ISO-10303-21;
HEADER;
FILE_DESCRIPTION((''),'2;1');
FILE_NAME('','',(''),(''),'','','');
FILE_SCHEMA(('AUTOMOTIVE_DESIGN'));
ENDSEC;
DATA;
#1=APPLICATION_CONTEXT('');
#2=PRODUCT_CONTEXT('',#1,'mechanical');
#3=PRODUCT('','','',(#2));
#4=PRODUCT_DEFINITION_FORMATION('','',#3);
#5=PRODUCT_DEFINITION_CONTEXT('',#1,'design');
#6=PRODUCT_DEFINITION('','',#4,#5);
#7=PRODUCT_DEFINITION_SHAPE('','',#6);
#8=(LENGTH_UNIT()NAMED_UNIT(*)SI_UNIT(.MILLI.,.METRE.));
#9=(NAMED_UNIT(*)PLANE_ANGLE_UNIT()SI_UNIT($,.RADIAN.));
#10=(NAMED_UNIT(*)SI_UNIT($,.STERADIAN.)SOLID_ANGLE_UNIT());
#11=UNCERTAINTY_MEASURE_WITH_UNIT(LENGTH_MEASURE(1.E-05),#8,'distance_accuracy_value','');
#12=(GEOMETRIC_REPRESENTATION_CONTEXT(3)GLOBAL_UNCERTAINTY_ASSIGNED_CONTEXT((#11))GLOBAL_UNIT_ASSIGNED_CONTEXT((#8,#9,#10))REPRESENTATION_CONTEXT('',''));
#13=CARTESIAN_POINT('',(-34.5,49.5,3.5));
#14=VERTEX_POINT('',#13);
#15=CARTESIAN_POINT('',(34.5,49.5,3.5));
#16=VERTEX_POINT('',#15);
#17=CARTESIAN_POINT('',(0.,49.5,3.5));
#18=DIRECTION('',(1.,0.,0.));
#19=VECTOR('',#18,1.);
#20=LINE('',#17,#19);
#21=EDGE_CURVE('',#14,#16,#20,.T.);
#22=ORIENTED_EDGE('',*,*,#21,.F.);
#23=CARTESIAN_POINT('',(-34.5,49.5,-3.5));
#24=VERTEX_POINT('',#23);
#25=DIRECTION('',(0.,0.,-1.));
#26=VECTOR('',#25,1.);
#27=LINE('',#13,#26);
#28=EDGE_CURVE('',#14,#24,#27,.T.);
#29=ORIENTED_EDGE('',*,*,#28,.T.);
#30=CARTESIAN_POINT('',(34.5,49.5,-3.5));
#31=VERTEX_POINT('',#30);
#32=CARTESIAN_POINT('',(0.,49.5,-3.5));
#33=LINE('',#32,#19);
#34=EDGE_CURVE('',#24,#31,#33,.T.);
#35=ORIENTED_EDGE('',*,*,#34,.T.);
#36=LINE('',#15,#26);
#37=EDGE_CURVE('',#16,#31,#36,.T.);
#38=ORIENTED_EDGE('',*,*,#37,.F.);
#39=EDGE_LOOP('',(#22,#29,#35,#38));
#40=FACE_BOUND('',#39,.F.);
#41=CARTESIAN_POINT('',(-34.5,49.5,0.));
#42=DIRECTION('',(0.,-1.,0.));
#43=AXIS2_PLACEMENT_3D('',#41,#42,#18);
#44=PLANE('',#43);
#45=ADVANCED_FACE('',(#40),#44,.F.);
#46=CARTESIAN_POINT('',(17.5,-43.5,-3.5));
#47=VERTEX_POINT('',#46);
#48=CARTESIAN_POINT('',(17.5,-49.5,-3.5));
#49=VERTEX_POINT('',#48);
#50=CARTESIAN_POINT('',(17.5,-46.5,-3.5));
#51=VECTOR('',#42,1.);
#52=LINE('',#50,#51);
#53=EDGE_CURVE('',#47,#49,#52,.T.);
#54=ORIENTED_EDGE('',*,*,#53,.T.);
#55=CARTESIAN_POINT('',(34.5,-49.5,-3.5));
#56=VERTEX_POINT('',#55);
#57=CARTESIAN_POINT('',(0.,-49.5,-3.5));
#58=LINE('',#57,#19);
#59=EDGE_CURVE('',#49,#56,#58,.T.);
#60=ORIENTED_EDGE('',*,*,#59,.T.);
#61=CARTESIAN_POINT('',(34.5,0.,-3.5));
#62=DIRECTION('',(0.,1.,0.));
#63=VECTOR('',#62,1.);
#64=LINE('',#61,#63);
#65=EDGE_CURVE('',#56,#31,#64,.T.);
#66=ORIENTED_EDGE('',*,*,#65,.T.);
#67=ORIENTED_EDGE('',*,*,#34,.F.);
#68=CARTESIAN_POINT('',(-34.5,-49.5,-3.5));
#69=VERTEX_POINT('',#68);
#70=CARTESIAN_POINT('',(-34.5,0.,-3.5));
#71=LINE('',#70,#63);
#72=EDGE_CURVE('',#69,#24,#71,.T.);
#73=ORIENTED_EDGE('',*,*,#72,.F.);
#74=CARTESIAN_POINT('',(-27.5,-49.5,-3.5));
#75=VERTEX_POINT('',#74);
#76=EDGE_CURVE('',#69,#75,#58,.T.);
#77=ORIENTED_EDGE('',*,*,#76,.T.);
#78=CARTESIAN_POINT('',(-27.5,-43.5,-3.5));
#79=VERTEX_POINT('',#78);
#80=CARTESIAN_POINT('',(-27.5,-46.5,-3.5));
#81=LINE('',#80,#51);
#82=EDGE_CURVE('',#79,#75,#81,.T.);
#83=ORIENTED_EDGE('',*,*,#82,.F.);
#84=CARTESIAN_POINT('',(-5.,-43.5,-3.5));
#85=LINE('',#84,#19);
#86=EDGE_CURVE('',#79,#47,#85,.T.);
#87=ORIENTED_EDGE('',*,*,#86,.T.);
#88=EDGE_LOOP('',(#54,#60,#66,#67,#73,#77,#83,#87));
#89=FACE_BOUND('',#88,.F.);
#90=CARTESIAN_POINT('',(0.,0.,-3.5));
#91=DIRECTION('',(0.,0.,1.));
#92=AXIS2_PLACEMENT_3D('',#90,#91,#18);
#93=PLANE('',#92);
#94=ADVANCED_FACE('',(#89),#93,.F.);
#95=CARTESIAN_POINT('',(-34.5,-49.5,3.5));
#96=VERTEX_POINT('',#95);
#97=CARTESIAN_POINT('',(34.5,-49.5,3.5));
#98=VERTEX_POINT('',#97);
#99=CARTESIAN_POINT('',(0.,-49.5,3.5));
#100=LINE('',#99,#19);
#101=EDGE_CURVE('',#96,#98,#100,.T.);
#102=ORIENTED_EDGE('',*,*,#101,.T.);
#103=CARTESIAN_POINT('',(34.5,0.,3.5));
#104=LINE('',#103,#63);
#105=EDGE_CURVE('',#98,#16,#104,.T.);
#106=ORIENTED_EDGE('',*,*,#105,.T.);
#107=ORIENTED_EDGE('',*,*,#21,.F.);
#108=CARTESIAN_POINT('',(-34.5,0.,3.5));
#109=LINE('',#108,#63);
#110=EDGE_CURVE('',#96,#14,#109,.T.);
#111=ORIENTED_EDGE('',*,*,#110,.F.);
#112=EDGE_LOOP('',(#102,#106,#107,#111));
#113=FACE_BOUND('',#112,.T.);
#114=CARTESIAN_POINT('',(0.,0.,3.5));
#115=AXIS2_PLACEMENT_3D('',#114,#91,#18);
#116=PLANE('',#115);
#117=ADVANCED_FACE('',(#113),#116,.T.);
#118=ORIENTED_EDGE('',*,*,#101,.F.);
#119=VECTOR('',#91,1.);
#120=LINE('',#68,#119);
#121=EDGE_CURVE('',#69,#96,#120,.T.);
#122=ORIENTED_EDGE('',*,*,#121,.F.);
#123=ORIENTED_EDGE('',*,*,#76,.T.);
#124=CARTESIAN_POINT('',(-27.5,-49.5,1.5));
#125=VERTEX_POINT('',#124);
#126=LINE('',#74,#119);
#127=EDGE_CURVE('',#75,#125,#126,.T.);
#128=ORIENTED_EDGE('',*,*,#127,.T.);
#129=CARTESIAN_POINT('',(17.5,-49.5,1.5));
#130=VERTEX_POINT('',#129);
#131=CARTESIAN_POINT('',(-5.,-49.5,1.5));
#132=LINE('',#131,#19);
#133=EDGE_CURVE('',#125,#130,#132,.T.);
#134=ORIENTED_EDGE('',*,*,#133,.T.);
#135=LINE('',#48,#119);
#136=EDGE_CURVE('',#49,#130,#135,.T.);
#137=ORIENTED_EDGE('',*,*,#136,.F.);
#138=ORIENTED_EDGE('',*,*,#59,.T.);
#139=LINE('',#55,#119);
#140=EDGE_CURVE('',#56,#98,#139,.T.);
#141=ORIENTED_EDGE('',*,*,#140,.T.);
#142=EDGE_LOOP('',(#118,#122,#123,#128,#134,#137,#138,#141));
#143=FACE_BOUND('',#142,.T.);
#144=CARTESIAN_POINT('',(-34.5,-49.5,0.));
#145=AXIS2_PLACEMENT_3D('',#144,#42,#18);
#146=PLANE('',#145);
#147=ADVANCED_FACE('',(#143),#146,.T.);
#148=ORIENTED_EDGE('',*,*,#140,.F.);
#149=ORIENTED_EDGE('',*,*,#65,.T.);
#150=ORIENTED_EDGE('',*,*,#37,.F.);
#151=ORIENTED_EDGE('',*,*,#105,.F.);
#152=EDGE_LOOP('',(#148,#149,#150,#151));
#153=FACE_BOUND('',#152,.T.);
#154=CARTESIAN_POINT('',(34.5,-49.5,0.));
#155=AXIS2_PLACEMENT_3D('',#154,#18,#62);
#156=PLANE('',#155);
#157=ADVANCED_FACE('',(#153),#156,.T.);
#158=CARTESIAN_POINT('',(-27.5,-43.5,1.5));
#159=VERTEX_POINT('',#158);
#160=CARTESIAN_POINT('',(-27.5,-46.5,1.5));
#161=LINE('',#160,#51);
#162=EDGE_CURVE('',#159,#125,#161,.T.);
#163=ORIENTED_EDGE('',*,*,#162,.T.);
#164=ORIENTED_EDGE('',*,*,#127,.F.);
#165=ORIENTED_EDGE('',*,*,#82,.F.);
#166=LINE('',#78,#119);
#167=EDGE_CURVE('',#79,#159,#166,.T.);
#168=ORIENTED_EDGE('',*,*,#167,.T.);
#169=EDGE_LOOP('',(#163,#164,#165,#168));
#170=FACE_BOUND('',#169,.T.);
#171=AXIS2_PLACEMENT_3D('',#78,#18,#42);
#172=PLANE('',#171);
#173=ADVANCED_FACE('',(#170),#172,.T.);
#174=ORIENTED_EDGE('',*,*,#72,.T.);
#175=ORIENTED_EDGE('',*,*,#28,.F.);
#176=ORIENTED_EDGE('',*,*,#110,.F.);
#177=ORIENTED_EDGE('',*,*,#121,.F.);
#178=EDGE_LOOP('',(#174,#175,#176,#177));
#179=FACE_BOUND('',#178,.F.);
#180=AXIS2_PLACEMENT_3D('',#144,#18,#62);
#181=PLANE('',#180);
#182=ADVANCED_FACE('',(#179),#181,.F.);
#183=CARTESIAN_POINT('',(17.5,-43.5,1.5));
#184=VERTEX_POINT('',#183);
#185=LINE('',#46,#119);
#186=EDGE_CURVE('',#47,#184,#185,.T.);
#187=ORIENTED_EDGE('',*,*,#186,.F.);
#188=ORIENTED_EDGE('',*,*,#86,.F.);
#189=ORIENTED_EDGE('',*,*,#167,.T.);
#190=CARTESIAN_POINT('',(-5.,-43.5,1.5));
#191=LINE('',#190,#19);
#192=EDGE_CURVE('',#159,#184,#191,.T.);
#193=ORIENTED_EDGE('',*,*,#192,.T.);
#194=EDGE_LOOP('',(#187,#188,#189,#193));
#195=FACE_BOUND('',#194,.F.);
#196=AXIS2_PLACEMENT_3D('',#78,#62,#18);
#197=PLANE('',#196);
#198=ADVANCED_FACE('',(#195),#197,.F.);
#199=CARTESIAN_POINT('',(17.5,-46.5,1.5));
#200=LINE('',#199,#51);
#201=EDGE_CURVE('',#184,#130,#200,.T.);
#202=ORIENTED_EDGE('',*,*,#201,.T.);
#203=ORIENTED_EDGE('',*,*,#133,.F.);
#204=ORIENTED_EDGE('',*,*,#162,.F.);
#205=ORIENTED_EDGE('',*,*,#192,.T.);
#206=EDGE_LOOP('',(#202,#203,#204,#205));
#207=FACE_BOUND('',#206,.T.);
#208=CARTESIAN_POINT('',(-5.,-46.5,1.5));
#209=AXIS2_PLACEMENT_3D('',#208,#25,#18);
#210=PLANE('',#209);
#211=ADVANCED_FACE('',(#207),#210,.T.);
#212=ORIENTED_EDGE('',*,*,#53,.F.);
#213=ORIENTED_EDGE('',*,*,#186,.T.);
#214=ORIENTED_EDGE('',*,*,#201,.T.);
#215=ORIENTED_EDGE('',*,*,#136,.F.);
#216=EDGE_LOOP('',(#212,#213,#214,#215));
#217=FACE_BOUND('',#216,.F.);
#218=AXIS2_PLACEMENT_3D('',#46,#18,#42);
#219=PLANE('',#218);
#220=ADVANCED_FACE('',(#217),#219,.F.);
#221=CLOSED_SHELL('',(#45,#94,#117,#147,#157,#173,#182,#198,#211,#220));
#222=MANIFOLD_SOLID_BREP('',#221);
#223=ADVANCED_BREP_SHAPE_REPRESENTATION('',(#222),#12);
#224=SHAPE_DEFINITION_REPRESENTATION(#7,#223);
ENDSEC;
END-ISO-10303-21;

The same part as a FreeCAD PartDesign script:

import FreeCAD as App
import Part
import Sketcher
from FreeCAD import Vector

doc = App.newDocument("Part")
body = doc.addObject("PartDesign::Body", "Body")

sketch1 = body.newObject("Sketcher::SketchObject", "Sketch")
sketch1.AttachmentSupport = (doc.getObject("XY_Plane"), [""])
sketch1.MapMode = "FlatFace"
sketch1.addGeometry(Part.LineSegment(Vector(-34, 50, 0), Vector(-34, -50, 0)), False)
sketch1.addGeometry(Part.LineSegment(Vector(-34, -50, 0), Vector(34, -50, 0)), False)
sketch1.addGeometry(Part.LineSegment(Vector(34, -50, 0), Vector(34, 50, 0)), False)
sketch1.addGeometry(Part.LineSegment(Vector(34, 50, 0), Vector(-34, 50, 0)), False)
sketch1.addConstraint(Sketcher.Constraint("Coincident", 0, 2, 1, 1))
sketch1.addConstraint(Sketcher.Constraint("Coincident", 1, 2, 2, 1))
sketch1.addConstraint(Sketcher.Constraint("Coincident", 2, 2, 3, 1))
sketch1.addConstraint(Sketcher.Constraint("Coincident", 3, 2, 0, 1))
sketch1.addConstraint(Sketcher.Constraint("Vertical", 0))
sketch1.addConstraint(Sketcher.Constraint("Horizontal", 1))
sketch1.addConstraint(Sketcher.Constraint("Vertical", 2))
sketch1.addConstraint(Sketcher.Constraint("Horizontal", 3))
sketch1.addConstraint(Sketcher.Constraint("Symmetric", 0, 2, 2, 2, -1, 1))
sketch1.addConstraint(Sketcher.Constraint("DistanceX", 1, 1, 1, 2, 69.0))
sketch1.addConstraint(Sketcher.Constraint("DistanceY", 0, 2, 0, 1, 99.0))
pad1 = body.newObject("PartDesign::Pad", "Pad")
pad1.Profile = sketch1
pad1.Length = 7
pad1.Midplane = True

sketch2 = body.newObject("Sketcher::SketchObject", "Sketch001")
sketch2.AttachmentSupport = (doc.getObject("XY_Plane"), [""])
sketch2.MapMode = "FlatFace"
sketch2.AttachmentOffset = App.Placement(Vector(0, 0, -3.5), App.Rotation())
sketch2.addGeometry(Part.LineSegment(Vector(-28, -50, 0), Vector(-28, -44, 0)), False)
sketch2.addGeometry(Part.LineSegment(Vector(-28, -44, 0), Vector(18, -44, 0)), False)
sketch2.addGeometry(Part.LineSegment(Vector(18, -44, 0), Vector(18, -50, 0)), False)
sketch2.addGeometry(Part.LineSegment(Vector(18, -50, 0), Vector(-28, -50, 0)), False)
sketch2.addConstraint(Sketcher.Constraint("Coincident", 0, 2, 1, 1))
sketch2.addConstraint(Sketcher.Constraint("Coincident", 1, 2, 2, 1))
sketch2.addConstraint(Sketcher.Constraint("Coincident", 2, 2, 3, 1))
sketch2.addConstraint(Sketcher.Constraint("Coincident", 3, 2, 0, 1))
sketch2.addConstraint(Sketcher.Constraint("Vertical", 0))
sketch2.addConstraint(Sketcher.Constraint("Horizontal", 1))
sketch2.addConstraint(Sketcher.Constraint("Vertical", 2))
sketch2.addConstraint(Sketcher.Constraint("Horizontal", 3))
sketch2.addConstraint(Sketcher.Constraint("DistanceX", 1, 1, 1, 2, 45.0))
sketch2.addConstraint(Sketcher.Constraint("DistanceY", 0, 1, 0, 2, 6.0))
sketch2.addConstraint(Sketcher.Constraint("DistanceX", 0, 2, -1, 1, 27.5))
sketch2.addConstraint(Sketcher.Constraint("DistanceY", 0, 2, -1, 1, 43.5))
pocket1 = body.newObject("PartDesign::Pocket", "Pocket")
pocket1.Profile = sketch2
pocket1.Length = 5
pocket1.Reversed = True

doc.recompute()
